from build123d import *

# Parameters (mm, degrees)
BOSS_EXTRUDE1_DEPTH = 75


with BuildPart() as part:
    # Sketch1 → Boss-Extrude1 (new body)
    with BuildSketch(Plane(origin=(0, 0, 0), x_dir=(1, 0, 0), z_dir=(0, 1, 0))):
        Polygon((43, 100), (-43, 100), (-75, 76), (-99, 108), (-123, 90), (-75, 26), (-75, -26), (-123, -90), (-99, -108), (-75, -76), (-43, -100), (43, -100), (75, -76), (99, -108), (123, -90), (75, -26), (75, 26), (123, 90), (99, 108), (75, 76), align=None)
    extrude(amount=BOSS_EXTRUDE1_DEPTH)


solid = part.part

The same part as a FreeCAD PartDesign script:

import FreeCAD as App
import Part
import Sketcher

V = App.Vector
Q = App.Units.Quantity


def add_polygon(sketch, points):
    """Adds a closed chain of lines whose ends are joined by coincident constraints."""
    first, n = sketch.GeometryCount, len(points)
    for a, b in zip(points, points[1:] + points[:1]):
        sketch.addGeometry(Part.LineSegment(App.Vector(*a, 0), App.Vector(*b, 0)), False)
    for i in range(n):
        sketch.addConstraint(Sketcher.Constraint("Coincident", first + i, 2, first + (i + 1) % n, 1))

doc = App.newDocument("Part")
body = doc.addObject("PartDesign::Body", "Body")

# Sketch on XZ plane
sketch1 = doc.addObject("Sketcher::SketchObject", "Sketch")
body.addObject(sketch1)
sketch1.AttachmentSupport = (doc.XZ_Plane, [""])
sketch1.MapMode = "FlatFace"
add_polygon(sketch1, [(43, -100), (-43, -100), (-75, -76), (-99, -108), (-123, -90), (-75, -26), (-75, 26), (-123, 90), (-99, 108), (-75, 76), (-43, 100), (43, 100), (75, 76), (99, 108), (123, 90), (75, 26), (75, -26), (123, -90), (99, -108), (75, -76)])  # lines 0-19
sketch1.addConstraint(Sketcher.Constraint("Horizontal", 0))
sketch1.addConstraint(Sketcher.Constraint("Vertical", 5))
sketch1.addConstraint(Sketcher.Constraint("Horizontal", 10))
sketch1.addConstraint(Sketcher.Constraint("Vertical", 15))
sketch1.addConstraint(Sketcher.Constraint("Symmetric", 0, 2, 10, 2, -1, 1))
sketch1.addConstraint(Sketcher.Constraint("Symmetric", 1, 2, 11, 2, -1, 1))
sketch1.addConstraint(Sketcher.Constraint("Symmetric", 2, 2, 12, 2, -1, 1))
sketch1.addConstraint(Sketcher.Constraint("Symmetric", 3, 2, 13, 2, -1, 1))
sketch1.addConstraint(Sketcher.Constraint("Symmetric", 4, 2, 14, 2, -1, 1))
sketch1.addConstraint(Sketcher.Constraint("Symmetric", 6, 2, 16, 2, -1, 1))
sketch1.addConstraint(Sketcher.Constraint("Symmetric", 7, 2, 17, 2, -1, 1))
sketch1.addConstraint(Sketcher.Constraint("Symmetric", 8, 2, 18, 2, -1, 1))
sketch1.addConstraint(Sketcher.Constraint("Symmetric", 8, 2, 11, 2, -2))
sketch1.addConstraint(Sketcher.Constraint("Symmetric", 7, 2, 12, 2, -2))
sketch1.addConstraint(Sketcher.Constraint("Symmetric", 6, 2, 13, 2, -2))
sketch1.addConstraint(Sketcher.Constraint("Perpendicular", 1, 2))
sketch1.addConstraint(Sketcher.Constraint("Perpendicular", 2, 3))
sketch1.addConstraint(Sketcher.Constraint("Perpendicular", 3, 4))
sketch1.addConstraint(Sketcher.Constraint("Perpendicular", 6, 7))
sketch1.addConstraint(Sketcher.Constraint("Perpendicular", 8, 9))
sketch1.addConstraint(Sketcher.Constraint("Perpendicular", 9, 16))
sketch1.addConstraint(Sketcher.Constraint("Perpendicular", 18, 19))
sketch1.addConstraint(Sketcher.Constraint("Vertical", 1, 2, 4, 2))
sketch1.addConstraint(Sketcher.Constraint("Equal", 1, 2))
sketch1.addConstraint(Sketcher.Constraint("DistanceX", 0, 2, 0, 1, Q("86 mm")))
sketch1.addConstraint(Sketcher.Constraint("DistanceY", 5, 1, 5, 2, Q("52 mm")))
sketch1.addConstraint(Sketcher.Constraint("Distance", 1, Q("40 mm")))
sketch1.addConstraint(Sketcher.Constraint("Distance", 3, Q("30 mm")))
sketch1.addConstraint(Sketcher.Constraint("Distance", 4, Q("80 mm")))
pad1 = doc.addObject("PartDesign::Pad", "Pad")
body.addObject(pad1)
pad1.Profile = sketch1
pad1.Length = 75
pad1.Reversed = True

doc.recompute()
